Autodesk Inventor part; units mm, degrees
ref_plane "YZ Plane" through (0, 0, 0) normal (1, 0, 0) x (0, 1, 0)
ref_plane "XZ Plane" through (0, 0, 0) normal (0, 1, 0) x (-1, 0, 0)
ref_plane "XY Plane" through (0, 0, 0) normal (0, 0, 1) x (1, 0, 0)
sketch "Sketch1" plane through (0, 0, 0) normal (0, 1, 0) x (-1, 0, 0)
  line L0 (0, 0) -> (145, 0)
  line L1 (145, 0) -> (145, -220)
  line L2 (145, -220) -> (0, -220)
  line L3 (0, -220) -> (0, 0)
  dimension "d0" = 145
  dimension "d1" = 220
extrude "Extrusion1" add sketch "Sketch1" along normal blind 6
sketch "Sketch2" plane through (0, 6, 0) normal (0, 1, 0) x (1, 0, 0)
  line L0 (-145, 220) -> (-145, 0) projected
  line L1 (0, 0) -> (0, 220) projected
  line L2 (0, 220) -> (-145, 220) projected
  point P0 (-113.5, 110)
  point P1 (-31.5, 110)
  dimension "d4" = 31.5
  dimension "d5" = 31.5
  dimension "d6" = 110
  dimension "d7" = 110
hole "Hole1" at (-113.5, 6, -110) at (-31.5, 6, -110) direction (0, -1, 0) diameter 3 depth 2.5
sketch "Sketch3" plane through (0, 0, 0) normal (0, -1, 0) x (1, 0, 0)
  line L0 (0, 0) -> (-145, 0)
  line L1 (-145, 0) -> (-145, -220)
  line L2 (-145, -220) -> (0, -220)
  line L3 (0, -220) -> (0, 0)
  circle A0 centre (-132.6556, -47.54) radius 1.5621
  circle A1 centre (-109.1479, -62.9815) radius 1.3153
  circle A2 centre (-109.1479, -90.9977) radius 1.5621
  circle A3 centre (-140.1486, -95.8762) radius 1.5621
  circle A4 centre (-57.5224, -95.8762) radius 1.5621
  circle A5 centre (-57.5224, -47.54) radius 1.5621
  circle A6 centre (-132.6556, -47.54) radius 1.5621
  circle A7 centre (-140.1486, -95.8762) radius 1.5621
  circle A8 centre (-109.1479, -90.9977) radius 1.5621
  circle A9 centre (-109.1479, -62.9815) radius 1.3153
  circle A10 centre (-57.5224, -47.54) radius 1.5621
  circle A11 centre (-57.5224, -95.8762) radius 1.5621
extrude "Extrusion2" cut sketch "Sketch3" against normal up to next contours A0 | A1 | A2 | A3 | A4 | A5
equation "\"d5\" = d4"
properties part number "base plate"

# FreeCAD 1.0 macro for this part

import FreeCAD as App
import Part
import Sketcher

V = App.Vector


def add_polygon(sketch, points):
    """Adds a closed chain of lines whose ends are joined by coincident constraints."""
    first, n = sketch.GeometryCount, len(points)
    for a, b in zip(points, points[1:] + points[:1]):
        sketch.addGeometry(Part.LineSegment(App.Vector(*a, 0), App.Vector(*b, 0)), False)
    for i in range(n):
        sketch.addConstraint(Sketcher.Constraint("Coincident", first + i, 2, first + (i + 1) % n, 1))

doc = App.newDocument("Part")
params = doc.addObject("Spreadsheet::Sheet", "Params")
for row, (alias, value) in enumerate([
    ("sketch1_width", "145 mm"),
    ("sketch1_height", "220 mm"),
    ("pad1_length", "6 mm"),
    ("sketch2_diameter", "3 mm"),
    ("hole_diameter", "3 mm"),
    ("hole_depth", "2.5 mm"),
], start=1):
    params.set(f"A{row}", alias)
    params.set(f"B{row}", "=" + value)
    params.setAlias(f"B{row}", alias)

body = doc.addObject("PartDesign::Body", "Body")

# Sketch on XZ plane
sketch1 = body.newObject("Sketcher::SketchObject", "Sketch")
sketch1.AttachmentSupport = (doc.getObject("XZ_Plane"), [""])
sketch1.MapMode = "FlatFace"
add_polygon(sketch1, [(-145, 0), (0, 0), (0, -220), (-145, -220)])  # lines 0-3
sketch1.addConstraint(Sketcher.Constraint("Horizontal", 0))
sketch1.addConstraint(Sketcher.Constraint("Vertical", 1))
sketch1.addConstraint(Sketcher.Constraint("Horizontal", 2))
sketch1.addConstraint(Sketcher.Constraint("Vertical", 3))
sketch1.addConstraint(Sketcher.Constraint("Coincident", 0, 2, -1, 1))
sketch1.addConstraint(Sketcher.Constraint("DistanceX", 0, 1, 0, 2, 145.0))
sketch1.addConstraint(Sketcher.Constraint("DistanceY", 1, 2, 1, 1, 220.0))
sketch1.setExpression("Constraints[9]", "Params.sketch1_width")
sketch1.setExpression("Constraints[10]", "Params.sketch1_height")
pad1 = body.newObject("PartDesign::Pad", "Pad")
pad1.Profile = sketch1
pad1.setExpression("Length", "Params.pad1_length")
pad1.Reversed = True

# Sketch on XZ plane
sketch2 = body.newObject("Sketcher::SketchObject", "Sketch001")
sketch2.AttachmentSupport = (doc.getObject("XZ_Plane"), [""])
sketch2.MapMode = "FlatFace"
sketch2.AttachmentOffset = App.Placement(V(0, 0, -6), App.Rotation())
sketch2.addGeometry(Part.Circle(V(-113.5, -110, 0), V(0, 0, 1), 1.5), False)
sketch2.addGeometry(Part.Circle(V(-31.5, -110, 0), V(0, 0, 1), 1.5), False)
sketch2.addConstraint(Sketcher.Constraint("Equal", 0, 1))
sketch2.addConstraint(Sketcher.Constraint("Horizontal", 0, 3, 1, 3))
sketch2.addConstraint(Sketcher.Constraint("Diameter", 0, 3.0))
sketch2.addConstraint(Sketcher.Constraint("DistanceY", 0, 3, -1, 1, 110.0))
sketch2.addConstraint(Sketcher.Constraint("DistanceX", 0, 3, 1, 3, 82.0))
sketch2.addConstraint(Sketcher.Constraint("DistanceX", 0, 3, -1, 1, 113.5))
sketch2.setExpression("Constraints[2]", "Params.sketch2_diameter")
doc.recompute()
hole = body.newObject("PartDesign::Hole", "Hole")
hole.Profile = sketch2
hole.ThreadType = "None"
hole.setExpression("Diameter", "Params.hole_diameter")
hole.DepthType = "Dimension"
hole.setExpression("Depth", "Params.hole_depth")
hole.DrillPoint = "Flat"
hole.Reversed = True

# Sketch on XZ plane
sketch3 = body.newObject("Sketcher::SketchObject", "Sketch002")
sketch3.AttachmentSupport = (doc.getObject("XZ_Plane"), [""])
sketch3.MapMode = "FlatFace"
sketch3.addGeometry(Part.Circle(V(-132.7, -47.5, 0), V(0, 0, 1), 1.6), False)
sketch3.addGeometry(Part.Circle(V(-109.1, -63, 0), V(0, 0, 1), 1.3), False)
sketch3.addGeometry(Part.Circle(V(-109.1, -91, 0), V(0, 0, 1), 1.6), False)
sketch3.addGeometry(Part.Circle(V(-140.1, -95.9, 0), V(0, 0, 1), 1.6), False)
sketch3.addGeometry(Part.Circle(V(-57.5, -95.9, 0), V(0, 0, 1), 1.6), False)
sketch3.addGeometry(Part.Circle(V(-57.5, -47.5, 0), V(0, 0, 1), 1.6), False)
sketch3.addConstraint(Sketcher.Constraint("Equal", 0, 2))
sketch3.addConstraint(Sketcher.Constraint("Equal", 2, 3))
sketch3.addConstraint(Sketcher.Constraint("Equal", 3, 4))
sketch3.addConstraint(Sketcher.Constraint("Equal", 4, 5))
sketch3.addConstraint(Sketcher.Constraint("Horizontal", 3, 3, 4, 3))
sketch3.addConstraint(Sketcher.Constraint("Horizontal", 0, 3, 5, 3))
sketch3.addConstraint(Sketcher.Constraint("Vertical", 1, 3, 2, 3))
sketch3.addConstraint(Sketcher.Constraint("Vertical", 4, 3, 5, 3))
sketch3.addConstraint(Sketcher.Constraint("Diameter", 0, 3.1242))
sketch3.addConstraint(Sketcher.Constraint("Diameter", 1, 2.6306))
sketch3.addConstraint(Sketcher.Constraint("DistanceY", 0, 3, -1, 1, 47.54))
sketch3.addConstraint(Sketcher.Constraint("DistanceX", 1, 3, -1, 1, 109.148))
sketch3.addConstraint(Sketcher.Constraint("DistanceX", 3, 3, 0, 3, 7.493))
sketch3.addConstraint(Sketcher.Constraint("DistanceX", 0, 3, -1, 1, 132.6556))
sketch3.addConstraint(Sketcher.Constraint("DistanceY", 1, 3, -1, 1, 62.9815))
sketch3.addConstraint(Sketcher.Constraint("DistanceY", 2, 3, -1, 1, 90.9977))
sketch3.addConstraint(Sketcher.Constraint("DistanceY", 3, 3, -1, 1, 95.8762))
sketch3.addConstraint(Sketcher.Constraint("DistanceX", 4, 3, -1, 1, 57.5224))
pocket1 = body.newObject("PartDesign::Pocket", "Pocket")
pocket1.Profile = sketch3
pocket1.Type = "UpToFirst"

doc.recompute()
